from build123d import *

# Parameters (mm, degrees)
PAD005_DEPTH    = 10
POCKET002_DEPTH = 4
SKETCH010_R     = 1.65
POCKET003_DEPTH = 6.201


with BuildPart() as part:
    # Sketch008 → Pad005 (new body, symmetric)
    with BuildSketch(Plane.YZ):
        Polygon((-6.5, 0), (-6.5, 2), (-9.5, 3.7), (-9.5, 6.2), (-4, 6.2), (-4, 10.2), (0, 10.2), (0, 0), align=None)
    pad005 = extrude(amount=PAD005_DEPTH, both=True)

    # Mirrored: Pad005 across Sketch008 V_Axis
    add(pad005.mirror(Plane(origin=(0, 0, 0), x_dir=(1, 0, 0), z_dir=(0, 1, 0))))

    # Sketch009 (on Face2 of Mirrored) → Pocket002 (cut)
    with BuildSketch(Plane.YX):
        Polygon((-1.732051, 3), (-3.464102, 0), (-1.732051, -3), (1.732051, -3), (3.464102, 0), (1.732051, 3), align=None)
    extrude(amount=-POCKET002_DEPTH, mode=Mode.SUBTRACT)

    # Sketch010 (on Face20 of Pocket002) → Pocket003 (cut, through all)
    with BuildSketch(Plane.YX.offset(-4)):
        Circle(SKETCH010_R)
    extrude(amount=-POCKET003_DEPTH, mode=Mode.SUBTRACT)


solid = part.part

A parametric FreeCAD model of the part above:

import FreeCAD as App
import Part
import Sketcher

V = App.Vector
Q = App.Units.Quantity

doc = App.newDocument("Part")
body = doc.addObject("PartDesign::Body", "Body")

# Sketch on YZ plane
sketch1 = body.newObject("Sketcher::SketchObject", "Sketch")
sketch1.AttachmentSupport = (doc.getObject("YZ_Plane"), [""])
sketch1.MapMode = "FlatFace"
sketch1.addGeometry(Part.LineSegment(V(-6.5, 2, 0), V(-6.5, 0, 0)), False)
sketch1.addGeometry(Part.LineSegment(V(-6.5, 0, 0), V(0, 0, 0)), False)
sketch1.addGeometry(Part.LineSegment(V(0, 0, 0), V(0, 10.2, 0)), False)
sketch1.addGeometry(Part.LineSegment(V(0, 10.2, 0), V(-4, 10.2, 0)), False)
sketch1.addGeometry(Part.LineSegment(V(-4, 10.2, 0), V(-4, 6.2, 0)), False)
sketch1.addGeometry(Part.LineSegment(V(-4, 6.2, 0), V(-9.5, 6.2, 0)), False)
sketch1.addGeometry(Part.LineSegment(V(-9.5, 6.2, 0), V(-9.5, 3.7, 0)), False)
sketch1.addGeometry(Part.LineSegment(V(-9.5, 3.7, 0), V(-6.5, 2, 0)), False)
sketch1.addConstraint(Sketcher.Constraint("Coincident", 0, 2, 1, 1))
sketch1.addConstraint(Sketcher.Constraint("Coincident", 1, 2, 2, 1))
sketch1.addConstraint(Sketcher.Constraint("Coincident", 2, 2, 3, 1))
sketch1.addConstraint(Sketcher.Constraint("Coincident", 3, 2, 4, 1))
sketch1.addConstraint(Sketcher.Constraint("Coincident", 4, 2, 5, 1))
sketch1.addConstraint(Sketcher.Constraint("Coincident", 5, 2, 6, 1))
sketch1.addConstraint(Sketcher.Constraint("Coincident", 6, 2, 7, 1))
sketch1.addConstraint(Sketcher.Constraint("Coincident", 7, 2, 0, 1))
sketch1.addConstraint(Sketcher.Constraint("Vertical", 0))
sketch1.addConstraint(Sketcher.Constraint("Horizontal", 1))
sketch1.addConstraint(Sketcher.Constraint("Vertical", 2))
sketch1.addConstraint(Sketcher.Constraint("Horizontal", 3))
sketch1.addConstraint(Sketcher.Constraint("Vertical", 4))
sketch1.addConstraint(Sketcher.Constraint("Horizontal", 5))
sketch1.addConstraint(Sketcher.Constraint("Vertical", 6))
sketch1.addConstraint(Sketcher.Constraint("Coincident", 1, 2, -1, 1))
sketch1.addConstraint(Sketcher.Constraint("Equal", 3, 4))
sketch1.addConstraint(Sketcher.Constraint("DistanceX", 3, 2, 3, 1, 4.0))
sketch1.addConstraint(Sketcher.Constraint("DistanceY", 0, 2, 0, 1, 2.0))
sketch1.addConstraint(Sketcher.Constraint("DistanceX", 1, 1, 1, 2, 6.5))
sketch1.addConstraint(Sketcher.Constraint("DistanceX", 5, 2, 5, 1, 5.5))
sketch1.addConstraint(Sketcher.Constraint("DistanceY", 2, 1, 2, 2, 10.2))
sketch1.addConstraint(Sketcher.Constraint("DistanceY", 6, 2, 6, 1, 2.5))
pad1 = body.newObject("PartDesign::Pad", "Pad")
pad1.Profile = sketch1
pad1.Length = 20
pad1.Midplane = True
doc.recompute()

mirrored = body.newObject("PartDesign::Mirrored", "Mirrored")
mirrored.Originals = [pad1]
mirrored.MirrorPlane = (doc.getObject("XZ_Plane"), [""])
body.Tip = mirrored

# Sketch on XY plane
sketch2 = body.newObject("Sketcher::SketchObject", "Sketch001")
sketch2.AttachmentSupport = (doc.getObject("XY_Plane"), [""])
sketch2.MapMode = "FlatFace"
sketch2.addGeometry(Part.LineSegment(V(3, -1.7, 0), V(0, -3.5, 0)), False)
sketch2.addGeometry(Part.LineSegment(V(0, -3.5, 0), V(-3, -1.7, 0)), False)
sketch2.addGeometry(Part.LineSegment(V(-3, -1.7, 0), V(-3, 1.7, 0)), False)
sketch2.addGeometry(Part.LineSegment(V(-3, 1.7, 0), V(0, 3.5, 0)), False)
sketch2.addGeometry(Part.LineSegment(V(0, 3.5, 0), V(3, 1.7, 0)), False)
sketch2.addGeometry(Part.LineSegment(V(3, 1.7, 0), V(3, -1.7, 0)), False)
sketch2.addConstraint(Sketcher.Constraint("Coincident", 0, 2, 1, 1))
sketch2.addConstraint(Sketcher.Constraint("Coincident", 1, 2, 2, 1))
sketch2.addConstraint(Sketcher.Constraint("Coincident", 2, 2, 3, 1))
sketch2.addConstraint(Sketcher.Constraint("Coincident", 3, 2, 4, 1))
sketch2.addConstraint(Sketcher.Constraint("Coincident", 4, 2, 5, 1))
sketch2.addConstraint(Sketcher.Constraint("Coincident", 5, 2, 0, 1))
sketch2.addConstraint(Sketcher.Constraint("Vertical", 2))
sketch2.addConstraint(Sketcher.Constraint("Vertical", 5))
sketch2.addConstraint(Sketcher.Constraint("Symmetric", 0, 2, 3, 2, -1, 1))
sketch2.addConstraint(Sketcher.Constraint("Symmetric", 1, 2, 4, 2, -1, 1))
sketch2.addConstraint(Sketcher.Constraint("PointOnObject", 0, 2, -2))
sketch2.addConstraint(Sketcher.Constraint("Parallel", 0, 3))
sketch2.addConstraint(Sketcher.Constraint("Horizontal", 2, 2, 4, 2))
sketch2.addConstraint(Sketcher.Constraint("Angle", 0, Q("-149.999997 deg")))
sketch2.addConstraint(Sketcher.Constraint("DistanceX", 1, 2, -1, 1, 3.0))
sketch2.addConstraint(Sketcher.Constraint("DistanceY", 2, 1, 2, 2, 3.464102))
pocket1 = body.newObject("PartDesign::Pocket", "Pocket")
pocket1.Profile = sketch2
pocket1.Length = 4
pocket1.Reversed = True

# Sketch on XY plane
sketch3 = body.newObject("Sketcher::SketchObject", "Sketch002")
sketch3.AttachmentSupport = (doc.getObject("XY_Plane"), [""])
sketch3.MapMode = "FlatFace"
sketch3.AttachmentOffset = App.Placement(V(0, 0, 4), App.Rotation())
sketch3.addGeometry(Part.Circle(V(0, 0, 0), V(0, 0, 1), 1.6), False)
sketch3.addConstraint(Sketcher.Constraint("Coincident", 0, 3, -1, 1))
sketch3.addConstraint(Sketcher.Constraint("Diameter", 0, 3.3))
pocket2 = body.newObject("PartDesign::Pocket", "Pocket001")
pocket2.Profile = sketch3
pocket2.Type = "ThroughAll"
pocket2.Reversed = True

doc.recompute()
